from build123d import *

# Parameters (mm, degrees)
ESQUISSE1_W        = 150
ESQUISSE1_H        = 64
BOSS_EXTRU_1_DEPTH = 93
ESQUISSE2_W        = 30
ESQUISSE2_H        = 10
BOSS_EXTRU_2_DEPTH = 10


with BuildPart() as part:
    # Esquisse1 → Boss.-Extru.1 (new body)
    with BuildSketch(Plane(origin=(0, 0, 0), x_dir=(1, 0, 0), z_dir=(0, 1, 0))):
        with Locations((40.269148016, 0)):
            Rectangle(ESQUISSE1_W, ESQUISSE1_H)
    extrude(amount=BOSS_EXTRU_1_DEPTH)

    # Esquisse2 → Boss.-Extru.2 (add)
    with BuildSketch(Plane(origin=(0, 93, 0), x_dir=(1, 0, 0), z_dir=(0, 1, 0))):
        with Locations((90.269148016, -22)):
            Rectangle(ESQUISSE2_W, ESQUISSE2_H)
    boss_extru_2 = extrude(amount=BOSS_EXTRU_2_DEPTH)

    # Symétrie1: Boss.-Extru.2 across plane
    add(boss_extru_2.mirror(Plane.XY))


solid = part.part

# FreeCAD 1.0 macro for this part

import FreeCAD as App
import Part
import Sketcher
Q = App.Units.Quantity

doc = App.newDocument("Part")
body = doc.addObject("PartDesign::Body", "Body")

sketch1 = body.newObject("Sketcher::SketchObject", "Sketch")
sketch1.AttachmentSupport = (doc.getObject("XZ_Plane"), [""])
sketch1.MapMode = "FlatFace"
sketch1.addGeometry([
    Part.LineSegment(App.Vector(-35, -32, 0), App.Vector(-35, 32, 0)),
    Part.LineSegment(App.Vector(-35, 32, 0), App.Vector(115, 32, 0)),
    Part.LineSegment(App.Vector(115, 32, 0), App.Vector(115, -32, 0)),
    Part.LineSegment(App.Vector(115, -32, 0), App.Vector(-35, -32, 0)),
], False)
sketch1.addConstraint([
    Sketcher.Constraint("Coincident", 0, 2, 1, 1),
    Sketcher.Constraint("Coincident", 1, 2, 2, 1),
    Sketcher.Constraint("Coincident", 2, 2, 3, 1),
    Sketcher.Constraint("Coincident", 3, 2, 0, 1),
    Sketcher.Constraint("Vertical", 0),
    Sketcher.Constraint("Horizontal", 1),
    Sketcher.Constraint("Vertical", 2),
    Sketcher.Constraint("Horizontal", 3),
    Sketcher.Constraint("DistanceX", 1, 1, 1, 2, Q("150 mm")),
    Sketcher.Constraint("DistanceY", 0, 1, 0, 2, Q("64 mm")),
    Sketcher.Constraint("DistanceY", -1, 1, 0, 2, Q("32 mm")),
    Sketcher.Constraint("DistanceX", 0, 2, -1, 1, Q("34.730852 mm")),
])
pad1 = body.newObject("PartDesign::Pad", "Pad")
pad1.Profile = sketch1
pad1.Length = 93
pad1.Reversed = True

sketch2 = body.newObject("Sketcher::SketchObject", "Sketch001")
sketch2.AttachmentSupport = (doc.getObject("XZ_Plane"), [""])
sketch2.MapMode = "FlatFace"
sketch2.AttachmentOffset = App.Placement(App.Vector(0, 0, -93), App.Rotation())
sketch2.addGeometry([
    Part.LineSegment(App.Vector(75, 17, 0), App.Vector(75, 27, 0)),
    Part.LineSegment(App.Vector(75, 27, 0), App.Vector(105, 27, 0)),
    Part.LineSegment(App.Vector(105, 27, 0), App.Vector(105, 17, 0)),
    Part.LineSegment(App.Vector(105, 17, 0), App.Vector(75, 17, 0)),
], False)
sketch2.addConstraint([
    Sketcher.Constraint("Coincident", 0, 2, 1, 1),
    Sketcher.Constraint("Coincident", 1, 2, 2, 1),
    Sketcher.Constraint("Coincident", 2, 2, 3, 1),
    Sketcher.Constraint("Coincident", 3, 2, 0, 1),
    Sketcher.Constraint("Vertical", 0),
    Sketcher.Constraint("Horizontal", 1),
    Sketcher.Constraint("Vertical", 2),
    Sketcher.Constraint("Horizontal", 3),
    Sketcher.Constraint("DistanceX", 1, 1, 1, 2, Q("30 mm")),
    Sketcher.Constraint("DistanceY", 0, 1, 0, 2, Q("10 mm")),
    Sketcher.Constraint("DistanceY", -1, 1, 0, 2, Q("27 mm")),
    Sketcher.Constraint("DistanceX", -1, 1, 0, 2, Q("75.269148 mm")),
])
pad2 = body.newObject("PartDesign::Pad", "Pad001")
pad2.Profile = sketch2
pad2.Length = 10
pad2.Reversed = True
doc.recompute()

mirrored = body.newObject("PartDesign::Mirrored", "Mirrored")
mirrored.Originals = [pad2]
mirrored.MirrorPlane = (doc.getObject("XY_Plane"), [""])
body.Tip = mirrored

doc.recompute()
